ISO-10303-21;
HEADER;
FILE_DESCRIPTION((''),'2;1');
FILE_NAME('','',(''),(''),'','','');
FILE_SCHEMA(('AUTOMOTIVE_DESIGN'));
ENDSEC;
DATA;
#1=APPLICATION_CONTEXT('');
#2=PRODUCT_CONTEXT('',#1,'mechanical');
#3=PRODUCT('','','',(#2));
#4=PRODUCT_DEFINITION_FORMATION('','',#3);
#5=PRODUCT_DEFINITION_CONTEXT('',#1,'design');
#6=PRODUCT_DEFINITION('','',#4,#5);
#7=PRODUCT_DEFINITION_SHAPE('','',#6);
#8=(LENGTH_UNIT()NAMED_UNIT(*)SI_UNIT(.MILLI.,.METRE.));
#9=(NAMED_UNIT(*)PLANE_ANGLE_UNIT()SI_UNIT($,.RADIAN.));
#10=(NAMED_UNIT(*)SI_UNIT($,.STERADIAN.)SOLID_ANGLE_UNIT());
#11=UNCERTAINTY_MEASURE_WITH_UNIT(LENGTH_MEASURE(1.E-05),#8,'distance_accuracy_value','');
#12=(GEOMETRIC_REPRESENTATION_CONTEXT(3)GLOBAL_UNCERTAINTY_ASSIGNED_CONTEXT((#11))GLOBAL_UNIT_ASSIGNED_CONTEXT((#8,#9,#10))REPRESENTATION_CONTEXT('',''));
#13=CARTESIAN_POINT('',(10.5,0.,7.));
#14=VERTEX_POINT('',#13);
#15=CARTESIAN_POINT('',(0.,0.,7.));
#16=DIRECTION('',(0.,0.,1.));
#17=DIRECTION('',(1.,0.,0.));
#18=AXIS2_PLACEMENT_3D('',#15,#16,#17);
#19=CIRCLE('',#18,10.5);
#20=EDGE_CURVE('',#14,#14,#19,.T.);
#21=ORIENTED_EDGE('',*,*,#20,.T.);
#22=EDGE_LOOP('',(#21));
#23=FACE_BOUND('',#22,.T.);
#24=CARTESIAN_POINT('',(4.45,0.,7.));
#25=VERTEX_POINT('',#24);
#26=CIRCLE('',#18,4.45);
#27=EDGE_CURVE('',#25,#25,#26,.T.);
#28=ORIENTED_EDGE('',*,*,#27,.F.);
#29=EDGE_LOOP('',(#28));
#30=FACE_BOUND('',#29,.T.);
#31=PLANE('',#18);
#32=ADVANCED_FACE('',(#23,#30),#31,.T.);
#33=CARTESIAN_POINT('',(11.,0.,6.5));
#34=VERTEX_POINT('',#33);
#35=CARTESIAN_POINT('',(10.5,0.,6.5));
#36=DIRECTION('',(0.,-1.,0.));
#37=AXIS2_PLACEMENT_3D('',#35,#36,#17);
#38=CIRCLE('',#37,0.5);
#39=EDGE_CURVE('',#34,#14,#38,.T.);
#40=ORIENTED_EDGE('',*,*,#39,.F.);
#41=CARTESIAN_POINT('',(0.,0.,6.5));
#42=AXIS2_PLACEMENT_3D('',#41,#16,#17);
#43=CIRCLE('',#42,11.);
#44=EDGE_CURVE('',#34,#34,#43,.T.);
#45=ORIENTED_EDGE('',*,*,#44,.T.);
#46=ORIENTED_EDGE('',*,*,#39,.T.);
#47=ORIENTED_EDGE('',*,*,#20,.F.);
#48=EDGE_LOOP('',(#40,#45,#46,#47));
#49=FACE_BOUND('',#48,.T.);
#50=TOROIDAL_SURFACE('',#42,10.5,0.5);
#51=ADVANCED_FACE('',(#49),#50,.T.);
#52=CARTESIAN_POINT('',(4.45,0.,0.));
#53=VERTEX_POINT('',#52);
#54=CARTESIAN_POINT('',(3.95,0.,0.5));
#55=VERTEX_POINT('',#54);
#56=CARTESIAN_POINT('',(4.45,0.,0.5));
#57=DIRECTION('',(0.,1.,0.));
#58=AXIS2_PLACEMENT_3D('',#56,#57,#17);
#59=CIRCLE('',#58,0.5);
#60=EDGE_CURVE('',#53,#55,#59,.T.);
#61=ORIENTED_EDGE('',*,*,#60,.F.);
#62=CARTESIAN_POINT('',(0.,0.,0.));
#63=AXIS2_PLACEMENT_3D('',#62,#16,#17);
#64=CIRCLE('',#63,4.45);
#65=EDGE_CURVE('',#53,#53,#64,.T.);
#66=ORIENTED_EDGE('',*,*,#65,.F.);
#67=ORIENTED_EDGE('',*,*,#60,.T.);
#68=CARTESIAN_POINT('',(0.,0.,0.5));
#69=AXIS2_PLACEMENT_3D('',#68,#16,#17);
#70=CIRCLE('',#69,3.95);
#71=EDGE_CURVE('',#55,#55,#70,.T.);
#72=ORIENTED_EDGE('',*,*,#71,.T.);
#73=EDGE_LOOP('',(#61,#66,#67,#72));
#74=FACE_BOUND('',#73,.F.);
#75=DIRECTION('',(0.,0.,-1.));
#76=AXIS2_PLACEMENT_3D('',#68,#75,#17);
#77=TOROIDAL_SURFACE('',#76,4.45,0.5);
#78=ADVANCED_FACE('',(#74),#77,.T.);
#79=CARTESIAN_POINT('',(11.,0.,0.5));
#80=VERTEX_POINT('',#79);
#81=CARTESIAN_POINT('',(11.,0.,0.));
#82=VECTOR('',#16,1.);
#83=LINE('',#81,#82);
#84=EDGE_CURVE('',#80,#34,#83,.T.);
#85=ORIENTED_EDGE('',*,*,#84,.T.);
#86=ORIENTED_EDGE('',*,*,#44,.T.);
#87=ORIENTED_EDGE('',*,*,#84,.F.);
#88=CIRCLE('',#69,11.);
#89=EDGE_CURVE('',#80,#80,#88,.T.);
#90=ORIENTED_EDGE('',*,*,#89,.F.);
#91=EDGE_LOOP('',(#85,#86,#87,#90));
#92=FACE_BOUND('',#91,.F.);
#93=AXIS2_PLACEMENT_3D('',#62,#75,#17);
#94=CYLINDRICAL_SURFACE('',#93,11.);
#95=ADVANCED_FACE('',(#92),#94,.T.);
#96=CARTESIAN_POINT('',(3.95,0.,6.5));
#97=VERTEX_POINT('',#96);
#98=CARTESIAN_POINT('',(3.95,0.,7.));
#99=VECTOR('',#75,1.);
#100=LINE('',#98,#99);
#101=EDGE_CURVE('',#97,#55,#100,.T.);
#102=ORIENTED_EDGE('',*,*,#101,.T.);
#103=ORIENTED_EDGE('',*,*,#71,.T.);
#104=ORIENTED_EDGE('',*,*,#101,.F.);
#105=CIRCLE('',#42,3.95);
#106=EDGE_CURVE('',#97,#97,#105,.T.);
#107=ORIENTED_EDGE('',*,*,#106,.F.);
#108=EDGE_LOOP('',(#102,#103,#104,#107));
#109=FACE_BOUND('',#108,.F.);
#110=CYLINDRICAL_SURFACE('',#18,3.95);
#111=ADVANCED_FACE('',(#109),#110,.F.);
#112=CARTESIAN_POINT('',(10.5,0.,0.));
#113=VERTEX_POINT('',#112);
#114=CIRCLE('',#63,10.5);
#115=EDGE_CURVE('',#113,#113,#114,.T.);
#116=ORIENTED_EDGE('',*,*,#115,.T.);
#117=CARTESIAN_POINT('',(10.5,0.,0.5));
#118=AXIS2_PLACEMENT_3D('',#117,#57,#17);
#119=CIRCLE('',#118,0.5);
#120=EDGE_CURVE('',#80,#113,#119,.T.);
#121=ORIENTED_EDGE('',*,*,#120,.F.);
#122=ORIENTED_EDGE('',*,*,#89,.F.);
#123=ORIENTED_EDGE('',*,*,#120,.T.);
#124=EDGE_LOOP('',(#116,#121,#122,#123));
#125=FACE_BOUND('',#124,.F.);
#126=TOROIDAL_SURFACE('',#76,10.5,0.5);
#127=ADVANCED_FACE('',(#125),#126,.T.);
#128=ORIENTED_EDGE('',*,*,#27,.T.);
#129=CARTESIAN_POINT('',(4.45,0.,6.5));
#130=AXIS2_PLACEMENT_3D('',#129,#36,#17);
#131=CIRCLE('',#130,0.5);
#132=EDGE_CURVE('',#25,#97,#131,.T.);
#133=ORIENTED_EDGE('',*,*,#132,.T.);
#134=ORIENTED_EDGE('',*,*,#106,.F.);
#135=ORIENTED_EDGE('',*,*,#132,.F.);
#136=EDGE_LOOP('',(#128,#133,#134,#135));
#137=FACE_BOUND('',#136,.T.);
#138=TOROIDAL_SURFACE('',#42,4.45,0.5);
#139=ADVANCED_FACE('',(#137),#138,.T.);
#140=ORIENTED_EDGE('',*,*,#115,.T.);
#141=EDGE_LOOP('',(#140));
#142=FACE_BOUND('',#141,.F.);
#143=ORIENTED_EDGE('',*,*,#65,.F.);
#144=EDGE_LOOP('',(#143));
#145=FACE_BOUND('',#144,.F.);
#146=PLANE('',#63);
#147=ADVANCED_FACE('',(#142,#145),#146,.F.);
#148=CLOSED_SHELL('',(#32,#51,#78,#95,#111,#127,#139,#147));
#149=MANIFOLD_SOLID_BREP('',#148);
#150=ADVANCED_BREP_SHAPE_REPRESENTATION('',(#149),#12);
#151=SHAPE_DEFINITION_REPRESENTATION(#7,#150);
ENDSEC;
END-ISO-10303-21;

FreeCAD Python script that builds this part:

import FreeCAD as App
import Part
import Sketcher
from FreeCAD import Vector
Q = App.Units.Quantity


def edges_at(feature, points):
    """Names of the edges that pass closest to the given points."""
    edges = feature.Shape.Edges
    near = lambda p: min(range(len(edges)), key=lambda i: edges[i].distToShape(Part.Vertex(*p))[0])
    return sorted({f"Edge{near(p) + 1}" for p in points})

doc = App.newDocument("Part")
body = doc.addObject("PartDesign::Body", "Body")

# Sketch on XY plane
sketch1 = body.newObject("Sketcher::SketchObject", "Sketch")
sketch1.AttachmentSupport = (doc.getObject("XY_Plane"), [""])
sketch1.MapMode = "FlatFace"
sketch1.addGeometry(Part.Circle(Vector(0, 0, 0), Vector(0, 0, 1), 11), False)
sketch1.addConstraint(Sketcher.Constraint("Coincident", 0, 3, -1, 1))
sketch1.addConstraint(Sketcher.Constraint("Diameter", 0, Q("22 mm")))
pad1 = body.newObject("PartDesign::Pad", "Pad")
pad1.Profile = sketch1
pad1.Length = 7

# Sketch on XY plane
sketch2 = body.newObject("Sketcher::SketchObject", "Sketch001")
sketch2.AttachmentSupport = (doc.getObject("XY_Plane"), [""])
sketch2.MapMode = "FlatFace"
sketch2.AttachmentOffset = App.Placement(Vector(0, 0, 7), App.Rotation())
sketch2.addGeometry(Part.Circle(Vector(0, 0, 0), Vector(0, 0, 1), 3.95), False)
sketch2.addConstraint(Sketcher.Constraint("Coincident", 0, 3, -1, 1))
sketch2.addConstraint(Sketcher.Constraint("Diameter", 0, Q("7.9 mm")))
pocket1 = body.newObject("PartDesign::Pocket", "Pocket")
pocket1.Profile = sketch2
pocket1.Type = "ThroughAll"
doc.recompute()

fillet = body.newObject("PartDesign::Fillet", "Fillet")
fillet.Base = (pocket1, edges_at(pocket1, [
    (-11, 0, 7),
    (-3.95, 0, 7),
    (-11, 0, 0),
    (-3.95, 0, 0),
]))
fillet.Radius = 0.5

doc.recompute()
